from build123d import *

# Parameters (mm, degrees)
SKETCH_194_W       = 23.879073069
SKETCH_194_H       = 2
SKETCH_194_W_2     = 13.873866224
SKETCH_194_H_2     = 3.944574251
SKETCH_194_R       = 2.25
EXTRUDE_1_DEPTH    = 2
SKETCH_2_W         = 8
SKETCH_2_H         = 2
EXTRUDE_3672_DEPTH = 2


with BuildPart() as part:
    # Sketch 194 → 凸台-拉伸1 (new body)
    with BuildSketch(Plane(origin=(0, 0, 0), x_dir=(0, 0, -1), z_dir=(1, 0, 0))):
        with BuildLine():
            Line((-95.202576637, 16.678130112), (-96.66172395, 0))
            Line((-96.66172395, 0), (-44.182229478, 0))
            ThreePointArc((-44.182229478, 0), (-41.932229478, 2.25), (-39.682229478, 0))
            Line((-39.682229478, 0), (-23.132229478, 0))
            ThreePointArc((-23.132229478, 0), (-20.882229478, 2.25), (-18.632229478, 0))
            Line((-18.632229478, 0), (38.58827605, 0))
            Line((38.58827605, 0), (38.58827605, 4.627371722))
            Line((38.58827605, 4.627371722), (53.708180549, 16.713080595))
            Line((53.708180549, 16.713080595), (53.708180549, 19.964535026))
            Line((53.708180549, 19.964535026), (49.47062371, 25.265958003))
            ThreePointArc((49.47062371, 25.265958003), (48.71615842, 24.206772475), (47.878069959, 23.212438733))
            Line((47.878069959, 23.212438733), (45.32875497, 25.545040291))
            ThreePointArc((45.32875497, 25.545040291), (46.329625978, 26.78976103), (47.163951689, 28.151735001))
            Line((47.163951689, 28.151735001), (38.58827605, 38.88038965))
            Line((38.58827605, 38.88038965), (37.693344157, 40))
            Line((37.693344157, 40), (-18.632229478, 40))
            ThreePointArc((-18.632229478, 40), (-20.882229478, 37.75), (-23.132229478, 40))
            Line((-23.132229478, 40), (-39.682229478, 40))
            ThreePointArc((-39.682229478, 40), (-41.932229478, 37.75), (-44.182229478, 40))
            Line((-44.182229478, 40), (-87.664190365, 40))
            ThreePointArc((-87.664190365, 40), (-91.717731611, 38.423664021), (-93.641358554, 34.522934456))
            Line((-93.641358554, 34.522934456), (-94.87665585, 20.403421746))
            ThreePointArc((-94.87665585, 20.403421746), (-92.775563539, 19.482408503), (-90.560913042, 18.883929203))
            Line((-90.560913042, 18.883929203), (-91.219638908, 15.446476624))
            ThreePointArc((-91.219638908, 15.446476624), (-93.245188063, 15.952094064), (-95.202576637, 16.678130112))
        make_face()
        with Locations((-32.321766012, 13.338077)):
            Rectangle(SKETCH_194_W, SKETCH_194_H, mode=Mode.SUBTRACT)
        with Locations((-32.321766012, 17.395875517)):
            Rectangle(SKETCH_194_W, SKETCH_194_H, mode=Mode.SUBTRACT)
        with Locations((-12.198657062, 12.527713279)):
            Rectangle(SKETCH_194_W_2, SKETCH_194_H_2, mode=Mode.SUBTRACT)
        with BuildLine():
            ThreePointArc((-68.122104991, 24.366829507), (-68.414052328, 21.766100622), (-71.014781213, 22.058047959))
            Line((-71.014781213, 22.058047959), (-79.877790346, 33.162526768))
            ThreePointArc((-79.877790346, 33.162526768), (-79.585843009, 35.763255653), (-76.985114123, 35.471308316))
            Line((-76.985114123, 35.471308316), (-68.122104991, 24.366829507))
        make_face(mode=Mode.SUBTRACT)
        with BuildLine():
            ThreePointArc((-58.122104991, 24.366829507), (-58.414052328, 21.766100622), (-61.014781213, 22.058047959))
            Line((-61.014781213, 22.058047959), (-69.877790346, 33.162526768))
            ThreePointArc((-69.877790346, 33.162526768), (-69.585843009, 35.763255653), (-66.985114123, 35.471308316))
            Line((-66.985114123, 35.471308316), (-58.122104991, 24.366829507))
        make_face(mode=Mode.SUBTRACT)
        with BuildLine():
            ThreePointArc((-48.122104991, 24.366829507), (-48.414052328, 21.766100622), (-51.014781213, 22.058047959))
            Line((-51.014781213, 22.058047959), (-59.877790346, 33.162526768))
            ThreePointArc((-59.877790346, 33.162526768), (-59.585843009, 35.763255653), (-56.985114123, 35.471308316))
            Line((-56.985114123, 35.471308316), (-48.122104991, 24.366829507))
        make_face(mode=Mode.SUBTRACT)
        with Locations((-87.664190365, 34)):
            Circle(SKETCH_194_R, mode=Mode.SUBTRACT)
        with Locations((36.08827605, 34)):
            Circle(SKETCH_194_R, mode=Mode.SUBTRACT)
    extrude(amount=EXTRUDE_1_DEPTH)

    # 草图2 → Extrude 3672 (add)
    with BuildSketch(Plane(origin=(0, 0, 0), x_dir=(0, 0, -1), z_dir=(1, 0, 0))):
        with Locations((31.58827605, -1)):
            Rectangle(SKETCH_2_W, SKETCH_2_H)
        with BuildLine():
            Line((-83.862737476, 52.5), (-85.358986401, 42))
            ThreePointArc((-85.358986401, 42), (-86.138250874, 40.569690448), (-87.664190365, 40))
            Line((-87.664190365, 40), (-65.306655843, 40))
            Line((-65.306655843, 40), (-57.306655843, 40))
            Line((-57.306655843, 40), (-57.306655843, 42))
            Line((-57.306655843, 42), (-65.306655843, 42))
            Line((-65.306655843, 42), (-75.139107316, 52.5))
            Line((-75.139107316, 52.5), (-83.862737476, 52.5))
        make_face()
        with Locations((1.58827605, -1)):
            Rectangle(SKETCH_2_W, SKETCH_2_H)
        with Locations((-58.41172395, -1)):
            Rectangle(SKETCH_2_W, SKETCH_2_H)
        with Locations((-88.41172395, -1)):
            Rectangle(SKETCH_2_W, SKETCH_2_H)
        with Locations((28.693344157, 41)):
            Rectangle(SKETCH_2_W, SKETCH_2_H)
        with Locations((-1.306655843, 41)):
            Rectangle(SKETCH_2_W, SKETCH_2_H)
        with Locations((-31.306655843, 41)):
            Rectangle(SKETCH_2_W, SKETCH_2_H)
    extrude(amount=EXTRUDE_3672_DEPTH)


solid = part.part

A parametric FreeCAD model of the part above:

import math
import FreeCAD as App
import Part
import Sketcher
from FreeCAD import Vector
Q = App.Units.Quantity

doc = App.newDocument("Part")
body = doc.addObject("PartDesign::Body", "Body")

# Sketch on YZ plane
sketch1 = doc.addObject("Sketcher::SketchObject", "Sketch")
body.addObject(sketch1)
sketch1.AttachmentSupport = (doc.YZ_Plane, [""])
sketch1.MapMode = "FlatFace"
sketch1.addGeometry(Part.LineSegment(Vector(16.7, 95.2, 0), Vector(0, 96.7, 0)), False)
sketch1.addGeometry(Part.LineSegment(Vector(0, 96.7, 0), Vector(0, 44.2, 0)), False)
sketch1.addGeometry(Part.ArcOfCircle(Part.Circle(Vector(0, 41.9, 0), Vector(0, 0, 1), 2.2), math.radians(-90), math.radians(90)), False)
sketch1.addGeometry(Part.LineSegment(Vector(0, 39.7, 0), Vector(0, 23.1, 0)), False)
sketch1.addGeometry(Part.ArcOfCircle(Part.Circle(Vector(0, 20.9, 0), Vector(0, 0, 1), 2.2), math.radians(-90), math.radians(90)), False)
sketch1.addGeometry(Part.LineSegment(Vector(0, 18.6, 0), Vector(0, -38.6, 0)), False)
sketch1.addGeometry(Part.LineSegment(Vector(0, -38.6, 0), Vector(4.6, -38.6, 0)), False)
sketch1.addGeometry(Part.LineSegment(Vector(4.6, -38.6, 0), Vector(16.7, -53.7, 0)), False)
sketch1.addGeometry(Part.LineSegment(Vector(16.7, -53.7, 0), Vector(20, -53.7, 0)), False)
sketch1.addGeometry(Part.LineSegment(Vector(20, -53.7, 0), Vector(25.3, -49.5, 0)), False)
sketch1.addGeometry(Part.ArcOfCircle(Part.Circle(Vector(34, -36.1, 0), Vector(0, 0, 1), 16), math.radians(-132.46), math.radians(-123.13)), False)
sketch1.addGeometry(Part.LineSegment(Vector(23.2, -47.9, 0), Vector(25.5, -45.3, 0)), False)
sketch1.addGeometry(Part.ArcOfCircle(Part.Circle(Vector(34, -36.1, 0), Vector(0, 0, 1), 12.5), math.radians(-132.46), math.radians(-117.84)), False)
sketch1.addGeometry(Part.LineSegment(Vector(28.2, -47.2, 0), Vector(38.9, -38.6, 0)), False)
sketch1.addGeometry(Part.LineSegment(Vector(38.9, -38.6, 0), Vector(40, -37.7, 0)), False)
sketch1.addGeometry(Part.LineSegment(Vector(40, -37.7, 0), Vector(40, 18.6, 0)), False)
sketch1.addGeometry(Part.ArcOfCircle(Part.Circle(Vector(40, 20.9, 0), Vector(0, 0, 1), 2.2), math.radians(90), math.radians(270)), False)
sketch1.addGeometry(Part.LineSegment(Vector(40, 23.1, 0), Vector(40, 39.7, 0)), False)
sketch1.addGeometry(Part.ArcOfCircle(Part.Circle(Vector(40, 41.9, 0), Vector(0, 0, 1), 2.2), math.radians(90), math.radians(270)), False)
sketch1.addGeometry(Part.LineSegment(Vector(40, 44.2, 0), Vector(40, 87.7, 0)), False)
sketch1.addGeometry(Part.ArcOfCircle(Part.Circle(Vector(34, 87.7, 0), Vector(0, 0, 1), 6), math.radians(0), math.radians(85)), False)
sketch1.addGeometry(Part.LineSegment(Vector(34.5, 93.6, 0), Vector(20.4, 94.9, 0)), False)
sketch1.addGeometry(Part.ArcOfCircle(Part.Circle(Vector(34, 87.7, 0), Vector(0, 0, 1), 15.4), math.radians(152.06), math.radians(169.15)), False)
sketch1.addGeometry(Part.LineSegment(Vector(18.9, 90.6, 0), Vector(15.4, 91.2, 0)), False)
sketch1.addGeometry(Part.ArcOfCircle(Part.Circle(Vector(34, 87.7, 0), Vector(0, 0, 1), 18.9), math.radians(156.48), math.radians(169.15)), False)
sketch1.addGeometry(Part.LineSegment(Vector(12.3, 20.4, 0), Vector(12.3, 44.3, 0)), False)
sketch1.addGeometry(Part.LineSegment(Vector(12.3, 44.3, 0), Vector(14.3, 44.3, 0)), False)
sketch1.addGeometry(Part.LineSegment(Vector(14.3, 44.3, 0), Vector(14.3, 20.4, 0)), False)
sketch1.addGeometry(Part.LineSegment(Vector(14.3, 20.4, 0), Vector(12.3, 20.4, 0)), False)
sketch1.addGeometry(Part.LineSegment(Vector(16.4, 20.4, 0), Vector(16.4, 44.3, 0)), False)
sketch1.addGeometry(Part.LineSegment(Vector(16.4, 44.3, 0), Vector(18.4, 44.3, 0)), False)
sketch1.addGeometry(Part.LineSegment(Vector(18.4, 44.3, 0), Vector(18.4, 20.4, 0)), False)
sketch1.addGeometry(Part.LineSegment(Vector(18.4, 20.4, 0), Vector(16.4, 20.4, 0)), False)
sketch1.addGeometry(Part.LineSegment(Vector(10.6, 5.3, 0), Vector(10.6, 19.1, 0)), False)
sketch1.addGeometry(Part.LineSegment(Vector(10.6, 19.1, 0), Vector(14.5, 19.1, 0)), False)
sketch1.addGeometry(Part.LineSegment(Vector(14.5, 19.1, 0), Vector(14.5, 5.3, 0)), False)
sketch1.addGeometry(Part.LineSegment(Vector(14.5, 5.3, 0), Vector(10.6, 5.3, 0)), False)
sketch1.addGeometry(Part.LineSegment(Vector(35.5, 77, 0), Vector(24.4, 68.1, 0)), False)
sketch1.addGeometry(Part.ArcOfCircle(Part.Circle(Vector(23.2, 69.6, 0), Vector(0, 0, 1), 1.9), math.radians(129), math.radians(309)), False)
sketch1.addGeometry(Part.LineSegment(Vector(22.1, 71, 0), Vector(33.2, 79.9, 0)), False)
sketch1.addGeometry(Part.ArcOfCircle(Part.Circle(Vector(34.3, 78.4, 0), Vector(0, 0, 1), 1.9), math.radians(-51), math.radians(129)), False)
sketch1.addGeometry(Part.LineSegment(Vector(35.5, 67, 0), Vector(24.4, 58.1, 0)), False)
sketch1.addGeometry(Part.ArcOfCircle(Part.Circle(Vector(23.2, 59.6, 0), Vector(0, 0, 1), 1.9), math.radians(129), math.radians(309)), False)
sketch1.addGeometry(Part.LineSegment(Vector(22.1, 61, 0), Vector(33.2, 69.9, 0)), False)
sketch1.addGeometry(Part.ArcOfCircle(Part.Circle(Vector(34.3, 68.4, 0), Vector(0, 0, 1), 1.9), math.radians(-51), math.radians(129)), False)
sketch1.addGeometry(Part.LineSegment(Vector(35.5, 57, 0), Vector(24.4, 48.1, 0)), False)
sketch1.addGeometry(Part.ArcOfCircle(Part.Circle(Vector(23.2, 49.6, 0), Vector(0, 0, 1), 1.9), math.radians(129), math.radians(309)), False)
sketch1.addGeometry(Part.LineSegment(Vector(22.1, 51, 0), Vector(33.2, 59.9, 0)), False)
sketch1.addGeometry(Part.ArcOfCircle(Part.Circle(Vector(34.3, 58.4, 0), Vector(0, 0, 1), 1.9), math.radians(-51), math.radians(129)), False)
sketch1.addGeometry(Part.Circle(Vector(34, 87.7, 0), Vector(0, 0, 1), 2.2), False)
sketch1.addGeometry(Part.Circle(Vector(34, -36.1, 0), Vector(0, 0, 1), 2.2), False)
sketch1.addConstraint(Sketcher.Constraint("Coincident", 0, 2, 1, 1))
sketch1.addConstraint(Sketcher.Constraint("Coincident", 1, 2, 2, 2))
sketch1.addConstraint(Sketcher.Constraint("Coincident", 2, 1, 3, 1))
sketch1.addConstraint(Sketcher.Constraint("Coincident", 3, 2, 4, 2))
sketch1.addConstraint(Sketcher.Constraint("Coincident", 4, 1, 5, 1))
sketch1.addConstraint(Sketcher.Constraint("Coincident", 5, 2, 6, 1))
sketch1.addConstraint(Sketcher.Constraint("Coincident", 6, 2, 7, 1))
sketch1.addConstraint(Sketcher.Constraint("Coincident", 7, 2, 8, 1))
sketch1.addConstraint(Sketcher.Constraint("Coincident", 8, 2, 9, 1))
sketch1.addConstraint(Sketcher.Constraint("Coincident", 9, 2, 10, 2))
sketch1.addConstraint(Sketcher.Constraint("Coincident", 10, 1, 11, 1))
sketch1.addConstraint(Sketcher.Constraint("Coincident", 11, 2, 12, 1))
sketch1.addConstraint(Sketcher.Constraint("Coincident", 12, 2, 13, 1))
sketch1.addConstraint(Sketcher.Constraint("Coincident", 13, 2, 14, 1))
sketch1.addConstraint(Sketcher.Constraint("Coincident", 14, 2, 15, 1))
sketch1.addConstraint(Sketcher.Constraint("Coincident", 15, 2, 16, 2))
sketch1.addConstraint(Sketcher.Constraint("Coincident", 16, 1, 17, 1))
sketch1.addConstraint(Sketcher.Constraint("Coincident", 17, 2, 18, 2))
sketch1.addConstraint(Sketcher.Constraint("Coincident", 18, 1, 19, 1))
sketch1.addConstraint(Sketcher.Constraint("Tangent", 19, 2, 20, 1))
sketch1.addConstraint(Sketcher.Constraint("Tangent", 20, 2, 21, 1))
sketch1.addConstraint(Sketcher.Constraint("Coincident", 21, 2, 22, 1))
sketch1.addConstraint(Sketcher.Constraint("Coincident", 22, 2, 23, 1))
sketch1.addConstraint(Sketcher.Constraint("Coincident", 23, 2, 24, 2))
sketch1.addConstraint(Sketcher.Constraint("Coincident", 24, 1, 0, 1))
sketch1.addConstraint(Sketcher.Constraint("Coincident", 25, 2, 26, 1))
sketch1.addConstraint(Sketcher.Constraint("Coincident", 26, 2, 27, 1))
sketch1.addConstraint(Sketcher.Constraint("Coincident", 27, 2, 28, 1))
sketch1.addConstraint(Sketcher.Constraint("Coincident", 28, 2, 25, 1))
sketch1.addConstraint(Sketcher.Constraint("Coincident", 29, 2, 30, 1))
sketch1.addConstraint(Sketcher.Constraint("Coincident", 30, 2, 31, 1))
sketch1.addConstraint(Sketcher.Constraint("Coincident", 31, 2, 32, 1))
sketch1.addConstraint(Sketcher.Constraint("Coincident", 32, 2, 29, 1))
sketch1.addConstraint(Sketcher.Constraint("Coincident", 33, 2, 34, 1))
sketch1.addConstraint(Sketcher.Constraint("Coincident", 34, 2, 35, 1))
sketch1.addConstraint(Sketcher.Constraint("Coincident", 35, 2, 36, 1))
sketch1.addConstraint(Sketcher.Constraint("Coincident", 36, 2, 33, 1))
sketch1.addConstraint(Sketcher.Constraint("Tangent", 37, 2, 38, 2))
sketch1.addConstraint(Sketcher.Constraint("Tangent", 38, 1, 39, 1))
sketch1.addConstraint(Sketcher.Constraint("Tangent", 39, 2, 40, 2))
sketch1.addConstraint(Sketcher.Constraint("Tangent", 40, 1, 37, 1))
sketch1.addConstraint(Sketcher.Constraint("Tangent", 41, 2, 42, 2))
sketch1.addConstraint(Sketcher.Constraint("Tangent", 42, 1, 43, 1))
sketch1.addConstraint(Sketcher.Constraint("Tangent", 43, 2, 44, 2))
sketch1.addConstraint(Sketcher.Constraint("Tangent", 44, 1, 41, 1))
sketch1.addConstraint(Sketcher.Constraint("Tangent", 45, 2, 46, 2))
sketch1.addConstraint(Sketcher.Constraint("Tangent", 46, 1, 47, 1))
sketch1.addConstraint(Sketcher.Constraint("Tangent", 47, 2, 48, 2))
sketch1.addConstraint(Sketcher.Constraint("Tangent", 48, 1, 45, 1))
sketch1.addConstraint(Sketcher.Constraint("Vertical", 1))
sketch1.addConstraint(Sketcher.Constraint("Vertical", 3))
sketch1.addConstraint(Sketcher.Constraint("Vertical", 5))
sketch1.addConstraint(Sketcher.Constraint("Horizontal", 6))
sketch1.addConstraint(Sketcher.Constraint("Horizontal", 8))
sketch1.addConstraint(Sketcher.Constraint("Vertical", 15))
sketch1.addConstraint(Sketcher.Constraint("Vertical", 17))
sketch1.addConstraint(Sketcher.Constraint("Vertical", 19))
sketch1.addConstraint(Sketcher.Constraint("Vertical", 25))
sketch1.addConstraint(Sketcher.Constraint("Horizontal", 26))
sketch1.addConstraint(Sketcher.Constraint("Vertical", 27))
sketch1.addConstraint(Sketcher.Constraint("Horizontal", 28))
sketch1.addConstraint(Sketcher.Constraint("Vertical", 29))
sketch1.addConstraint(Sketcher.Constraint("Horizontal", 30))
sketch1.addConstraint(Sketcher.Constraint("Vertical", 31))
sketch1.addConstraint(Sketcher.Constraint("Horizontal", 32))
sketch1.addConstraint(Sketcher.Constraint("Vertical", 33))
sketch1.addConstraint(Sketcher.Constraint("Horizontal", 34))
sketch1.addConstraint(Sketcher.Constraint("Vertical", 35))
sketch1.addConstraint(Sketcher.Constraint("Horizontal", 36))
sketch1.addConstraint(Sketcher.Constraint("Coincident", 12, 3, 10, 3))
sketch1.addConstraint(Sketcher.Constraint("Coincident", 22, 3, 20, 3))
sketch1.addConstraint(Sketcher.Constraint("Coincident", 24, 3, 20, 3))
sketch1.addConstraint(Sketcher.Constraint("Coincident", 49, 3, 20, 3))
sketch1.addConstraint(Sketcher.Constraint("Coincident", 50, 3, 10, 3))
sketch1.addConstraint(Sketcher.Constraint("Equal", 2, 4))
sketch1.addConstraint(Sketcher.Constraint("Equal", 4, 16))
sketch1.addConstraint(Sketcher.Constraint("Equal", 16, 18))
sketch1.addConstraint(Sketcher.Constraint("Equal", 38, 40))
sketch1.addConstraint(Sketcher.Constraint("Equal", 40, 42))
sketch1.addConstraint(Sketcher.Constraint("Equal", 42, 44))
sketch1.addConstraint(Sketcher.Constraint("Equal", 44, 46))
sketch1.addConstraint(Sketcher.Constraint("Equal", 46, 48))
sketch1.addConstraint(Sketcher.Constraint("Equal", 18, 49))
sketch1.addConstraint(Sketcher.Constraint("Equal", 49, 50))
sketch1.addConstraint(Sketcher.Constraint("PointOnObject", 2, 3, -2))
sketch1.addConstraint(Sketcher.Constraint("PointOnObject", 4, 3, -2))
sketch1.addConstraint(Sketcher.Constraint("PointOnObject", 0, 2, -2))
sketch1.addConstraint(Sketcher.Constraint("PointOnObject", 2, 1, -2))
sketch1.addConstraint(Sketcher.Constraint("PointOnObject", 4, 1, -2))
sketch1.addConstraint(Sketcher.Constraint("Perpendicular", 7, 9))
sketch1.addConstraint(Sketcher.Constraint("Parallel", 9, 13))
sketch1.addConstraint(Sketcher.Constraint("Parallel", 13, 14))
sketch1.addConstraint(Sketcher.Constraint("Parallel", 0, 21))
sketch1.addConstraint(Sketcher.Constraint("Parallel", 39, 41))
sketch1.addConstraint(Sketcher.Constraint("Parallel", 43, 45))
sketch1.addConstraint(Sketcher.Constraint("Horizontal", 4, 3, 16, 3))
sketch1.addConstraint(Sketcher.Constraint("Horizontal", 2, 3, 18, 3))
sketch1.addConstraint(Sketcher.Constraint("Horizontal", 6, 2, 13, 2))
sketch1.addConstraint(Sketcher.Constraint("Horizontal", 26, 2, 29, 2))
sketch1.addConstraint(Sketcher.Constraint("Horizontal", 28, 2, 31, 2))
sketch1.addConstraint(Sketcher.Constraint("Vertical", 16, 3, 18, 3))
sketch1.addConstraint(Sketcher.Constraint("Vertical", 12, 3, 20, 3))
sketch1.addConstraint(Sketcher.Constraint("Vertical", 38, 3, 42, 3))
sketch1.addConstraint(Sketcher.Constraint("Vertical", 40, 3, 44, 3))
sketch1.addConstraint(Sketcher.Constraint("Vertical", 42, 3, 46, 3))
sketch1.addConstraint(Sketcher.Constraint("Vertical", 44, 3, 48, 3))
sketch1.addConstraint(Sketcher.Constraint("Vertical", 46, 3, 10, 1))
sketch1.addConstraint(Sketcher.Constraint("Vertical", 18, 3, 14, 2))
sketch1.addConstraint(Sketcher.Constraint("Vertical", 15, 2, 16, 1))
sketch1.addConstraint(Sketcher.Constraint("Vertical", 17, 2, 18, 1))
sketch1.addConstraint(Sketcher.Constraint("Equal", 28, 30))
sketch1.addConstraint(Sketcher.Constraint("Radius", 20, 6.0))
sketch1.addConstraint(Sketcher.Constraint("Diameter", 49, 4.5))
sketch1.addConstraint(Sketcher.Constraint("DistanceX", 26, 1, 26, 2, 2.0))
sketch1.addConstraint(Sketcher.Constraint("Angle", 0, Q("175 deg")))
sketch1.addConstraint(Sketcher.Constraint("DistanceX", -1, 1, 10, 3, 34.0))
sketch1.addConstraint(Sketcher.Constraint("Distance", 23, 3.5))
sketch1.addConstraint(Sketcher.Constraint("DistanceY", 3, 2, 3, 1, 16.55))
sketch1.addConstraint(Sketcher.Constraint("DistanceX", -1, 1, 34, 2, 14.5))
sketch1.addConstraint(Sketcher.Constraint("Radius", 22, 15.391121))
sketch1.addConstraint(Sketcher.Constraint("Radius", 10, 15.980323))
sketch1.addConstraint(Sketcher.Constraint("Radius", 12, 12.524887))
sketch1.addConstraint(Sketcher.Constraint("Radius", 38, 1.850544))
sketch1.addConstraint(Sketcher.Constraint("DistanceX", 6, 1, 6, 2, 4.627372))
sketch1.addConstraint(Sketcher.Constraint("DistanceY", 19, 1, 19, 2, 43.481961))
sketch1.addConstraint(Sketcher.Constraint("Distance", 14, 1.433328))
sketch1.addConstraint(Sketcher.Constraint("Distance", 37, 14.207828))
sketch1.addConstraint(Sketcher.Constraint("DistanceX", 8, 1, 8, 2, 3.251454))
sketch1.addConstraint(Sketcher.Constraint("DistanceX", 34, 1, 34, 2, 3.944574))
sketch1.addConstraint(Sketcher.Constraint("DistanceY", 1, 2, 1, 1, 52.479494))
sketch1.addConstraint(Sketcher.Constraint("DistanceY", 5, 2, 5, 1, 57.220506))
sketch1.addConstraint(Sketcher.Constraint("DistanceY", 15, 1, 15, 2, 56.325574))
sketch1.addConstraint(Sketcher.Constraint("DistanceY", 25, 1, 25, 2, 23.879073))
sketch1.addConstraint(Sketcher.Constraint("DistanceY", 33, 1, 33, 2, 13.873866))
sketch1.addConstraint(Sketcher.Constraint("DistanceY", -1, 1, 2, 3, 41.932229))
sketch1.addConstraint(Sketcher.Constraint("DistanceX", -1, 1, 38, 3, 23.212439))
sketch1.addConstraint(Sketcher.Constraint("DistanceX", -1, 1, 7, 2, 16.713081))
sketch1.addConstraint(Sketcher.Constraint("DistanceX", -1, 1, 9, 2, 25.265958))
sketch1.addConstraint(Sketcher.Constraint("DistanceX", -1, 1, 11, 2, 25.54504))
sketch1.addConstraint(Sketcher.Constraint("DistanceX", -1, 1, 22, 2, 18.883929))
sketch1.addConstraint(Sketcher.Constraint("DistanceY", -1, 1, 23, 2, 91.219639))
sketch1.addConstraint(Sketcher.Constraint("DistanceY", -1, 1, 27, 2, 20.382229))
sketch1.addConstraint(Sketcher.Constraint("DistanceY", -1, 1, 33, 2, 19.13559))
sketch1.addConstraint(Sketcher.Constraint("DistanceX", -1, 1, 37, 2, 24.36683))
sketch1.addConstraint(Sketcher.Constraint("DistanceY", -1, 1, 38, 1, 71.014781))
sketch1.addConstraint(Sketcher.Constraint("DistanceY", -1, 1, 42, 1, 61.014781))
sketch1.addConstraint(Sketcher.Constraint("DistanceY", -1, 1, 46, 1, 51.014781))
sketch1.addConstraint(Sketcher.Constraint("DistanceX", -1, 1, 25, 2, 12.338077))
sketch1.addConstraint(Sketcher.Constraint("DistanceX", -1, 1, 29, 2, 16.395876))
pad1 = doc.addObject("PartDesign::Pad", "Pad")
body.addObject(pad1)
pad1.Profile = sketch1
pad1.Length = 2

# Sketch on YZ plane
sketch2 = doc.addObject("Sketcher::SketchObject", "Sketch001")
body.addObject(sketch2)
sketch2.AttachmentSupport = (doc.YZ_Plane, [""])
sketch2.MapMode = "FlatFace"
sketch2.addGeometry(Part.LineSegment(Vector(0, -27.6, 0), Vector(-2, -27.6, 0)), False)
sketch2.addGeometry(Part.LineSegment(Vector(-2, -27.6, 0), Vector(-2, -35.6, 0)), False)
sketch2.addGeometry(Part.LineSegment(Vector(-2, -35.6, 0), Vector(0, -35.6, 0)), False)
sketch2.addGeometry(Part.LineSegment(Vector(0, -35.6, 0), Vector(0, -27.6, 0)), False)
sketch2.addGeometry(Part.LineSegment(Vector(52.5, 83.9, 0), Vector(42, 85.4, 0)), False)
sketch2.addGeometry(Part.ArcOfCircle(Part.Circle(Vector(42.3, 87.7, 0), Vector(0, 0, 1), 2.3), math.radians(180), math.radians(262)), False)
sketch2.addGeometry(Part.LineSegment(Vector(40, 87.7, 0), Vector(40, 57.3, 0)), False)
sketch2.addGeometry(Part.LineSegment(Vector(40, 57.3, 0), Vector(42, 57.3, 0)), False)
sketch2.addGeometry(Part.LineSegment(Vector(42, 57.3, 0), Vector(42, 65.3, 0)), False)
sketch2.addGeometry(Part.LineSegment(Vector(42, 65.3, 0), Vector(52.5, 75.1, 0)), False)
sketch2.addGeometry(Part.LineSegment(Vector(52.5, 75.1, 0), Vector(52.5, 83.9, 0)), False)
sketch2.addGeometry(Part.LineSegment(Vector(0, 2.4, 0), Vector(-2, 2.4, 0)), False)
sketch2.addGeometry(Part.LineSegment(Vector(-2, 2.4, 0), Vector(-2, -5.6, 0)), False)
sketch2.addGeometry(Part.LineSegment(Vector(-2, -5.6, 0), Vector(0, -5.6, 0)), False)
sketch2.addGeometry(Part.LineSegment(Vector(0, -5.6, 0), Vector(0, 2.4, 0)), False)
sketch2.addGeometry(Part.LineSegment(Vector(0, 62.4, 0), Vector(-2, 62.4, 0)), False)
sketch2.addGeometry(Part.LineSegment(Vector(-2, 62.4, 0), Vector(-2, 54.4, 0)), False)
sketch2.addGeometry(Part.LineSegment(Vector(-2, 54.4, 0), Vector(0, 54.4, 0)), False)
sketch2.addGeometry(Part.LineSegment(Vector(0, 54.4, 0), Vector(0, 62.4, 0)), False)
sketch2.addGeometry(Part.LineSegment(Vector(0, 92.4, 0), Vector(-2, 92.4, 0)), False)
sketch2.addGeometry(Part.LineSegment(Vector(-2, 92.4, 0), Vector(-2, 84.4, 0)), False)
sketch2.addGeometry(Part.LineSegment(Vector(-2, 84.4, 0), Vector(0, 84.4, 0)), False)
sketch2.addGeometry(Part.LineSegment(Vector(0, 84.4, 0), Vector(0, 92.4, 0)), False)
sketch2.addGeometry(Part.LineSegment(Vector(42, -24.7, 0), Vector(40, -24.7, 0)), False)
sketch2.addGeometry(Part.LineSegment(Vector(40, -24.7, 0), Vector(40, -32.7, 0)), False)
sketch2.addGeometry(Part.LineSegment(Vector(40, -32.7, 0), Vector(42, -32.7, 0)), False)
sketch2.addGeometry(Part.LineSegment(Vector(42, -32.7, 0), Vector(42, -24.7, 0)), False)
sketch2.addGeometry(Part.LineSegment(Vector(42, 5.3, 0), Vector(40, 5.3, 0)), False)
sketch2.addGeometry(Part.LineSegment(Vector(40, 5.3, 0), Vector(40, -2.7, 0)), False)
sketch2.addGeometry(Part.LineSegment(Vector(40, -2.7, 0), Vector(42, -2.7, 0)), False)
sketch2.addGeometry(Part.LineSegment(Vector(42, -2.7, 0), Vector(42, 5.3, 0)), False)
sketch2.addGeometry(Part.LineSegment(Vector(42, 35.3, 0), Vector(40, 35.3, 0)), False)
sketch2.addGeometry(Part.LineSegment(Vector(40, 35.3, 0), Vector(40, 27.3, 0)), False)
sketch2.addGeometry(Part.LineSegment(Vector(40, 27.3, 0), Vector(42, 27.3, 0)), False)
sketch2.addGeometry(Part.LineSegment(Vector(42, 27.3, 0), Vector(42, 35.3, 0)), False)
sketch2.addConstraint(Sketcher.Constraint("Coincident", 0, 2, 1, 1))
sketch2.addConstraint(Sketcher.Constraint("Coincident", 1, 2, 2, 1))
sketch2.addConstraint(Sketcher.Constraint("Coincident", 2, 2, 3, 1))
sketch2.addConstraint(Sketcher.Constraint("Coincident", 3, 2, 0, 1))
sketch2.addConstraint(Sketcher.Constraint("Tangent", 4, 2, 5, 2))
sketch2.addConstraint(Sketcher.Constraint("Tangent", 5, 1, 6, 1))
sketch2.addConstraint(Sketcher.Constraint("Coincident", 6, 2, 7, 1))
sketch2.addConstraint(Sketcher.Constraint("Coincident", 7, 2, 8, 1))
sketch2.addConstraint(Sketcher.Constraint("Coincident", 8, 2, 9, 1))
sketch2.addConstraint(Sketcher.Constraint("Coincident", 9, 2, 10, 1))
sketch2.addConstraint(Sketcher.Constraint("Coincident", 10, 2, 4, 1))
sketch2.addConstraint(Sketcher.Constraint("Coincident", 11, 2, 12, 1))
sketch2.addConstraint(Sketcher.Constraint("Coincident", 12, 2, 13, 1))
sketch2.addConstraint(Sketcher.Constraint("Coincident", 13, 2, 14, 1))
sketch2.addConstraint(Sketcher.Constraint("Coincident", 14, 2, 11, 1))
sketch2.addConstraint(Sketcher.Constraint("Coincident", 15, 2, 16, 1))
sketch2.addConstraint(Sketcher.Constraint("Coincident", 16, 2, 17, 1))
sketch2.addConstraint(Sketcher.Constraint("Coincident", 17, 2, 18, 1))
sketch2.addConstraint(Sketcher.Constraint("Coincident", 18, 2, 15, 1))
sketch2.addConstraint(Sketcher.Constraint("Coincident", 19, 2, 20, 1))
sketch2.addConstraint(Sketcher.Constraint("Coincident", 20, 2, 21, 1))
sketch2.addConstraint(Sketcher.Constraint("Coincident", 21, 2, 22, 1))
sketch2.addConstraint(Sketcher.Constraint("Coincident", 22, 2, 19, 1))
sketch2.addConstraint(Sketcher.Constraint("Coincident", 23, 2, 24, 1))
sketch2.addConstraint(Sketcher.Constraint("Coincident", 24, 2, 25, 1))
sketch2.addConstraint(Sketcher.Constraint("Coincident", 25, 2, 26, 1))
sketch2.addConstraint(Sketcher.Constraint("Coincident", 26, 2, 23, 1))
sketch2.addConstraint(Sketcher.Constraint("Coincident", 27, 2, 28, 1))
sketch2.addConstraint(Sketcher.Constraint("Coincident", 28, 2, 29, 1))
sketch2.addConstraint(Sketcher.Constraint("Coincident", 29, 2, 30, 1))
sketch2.addConstraint(Sketcher.Constraint("Coincident", 30, 2, 27, 1))
sketch2.addConstraint(Sketcher.Constraint("Coincident", 31, 2, 32, 1))
sketch2.addConstraint(Sketcher.Constraint("Coincident", 32, 2, 33, 1))
sketch2.addConstraint(Sketcher.Constraint("Coincident", 33, 2, 34, 1))
sketch2.addConstraint(Sketcher.Constraint("Coincident", 34, 2, 31, 1))
sketch2.addConstraint(Sketcher.Constraint("Horizontal", 0))
sketch2.addConstraint(Sketcher.Constraint("Vertical", 1))
sketch2.addConstraint(Sketcher.Constraint("Horizontal", 2))
sketch2.addConstraint(Sketcher.Constraint("Vertical", 3))
sketch2.addConstraint(Sketcher.Constraint("Vertical", 6))
sketch2.addConstraint(Sketcher.Constraint("Horizontal", 7))
sketch2.addConstraint(Sketcher.Constraint("Vertical", 8))
sketch2.addConstraint(Sketcher.Constraint("Vertical", 10))
sketch2.addConstraint(Sketcher.Constraint("Horizontal", 11))
sketch2.addConstraint(Sketcher.Constraint("Vertical", 12))
sketch2.addConstraint(Sketcher.Constraint("Horizontal", 13))
sketch2.addConstraint(Sketcher.Constraint("Vertical", 14))
sketch2.addConstraint(Sketcher.Constraint("Horizontal", 15))
sketch2.addConstraint(Sketcher.Constraint("Vertical", 16))
sketch2.addConstraint(Sketcher.Constraint("Horizontal", 17))
sketch2.addConstraint(Sketcher.Constraint("Vertical", 18))
sketch2.addConstraint(Sketcher.Constraint("Horizontal", 19))
sketch2.addConstraint(Sketcher.Constraint("Vertical", 20))
sketch2.addConstraint(Sketcher.Constraint("Horizontal", 21))
sketch2.addConstraint(Sketcher.Constraint("Vertical", 22))
sketch2.addConstraint(Sketcher.Constraint("Horizontal", 23))
sketch2.addConstraint(Sketcher.Constraint("Vertical", 24))
sketch2.addConstraint(Sketcher.Constraint("Horizontal", 25))
sketch2.addConstraint(Sketcher.Constraint("Vertical", 26))
sketch2.addConstraint(Sketcher.Constraint("Horizontal", 27))
sketch2.addConstraint(Sketcher.Constraint("Vertical", 28))
sketch2.addConstraint(Sketcher.Constraint("Horizontal", 29))
sketch2.addConstraint(Sketcher.Constraint("Vertical", 30))
sketch2.addConstraint(Sketcher.Constraint("Horizontal", 31))
sketch2.addConstraint(Sketcher.Constraint("Vertical", 32))
sketch2.addConstraint(Sketcher.Constraint("Horizontal", 33))
sketch2.addConstraint(Sketcher.Constraint("Vertical", 34))
sketch2.addConstraint(Sketcher.Constraint("PointOnObject", 2, 2, -2))
sketch2.addConstraint(Sketcher.Constraint("PointOnObject", 13, 2, -2))
sketch2.addConstraint(Sketcher.Constraint("PointOnObject", 17, 2, -2))
sketch2.addConstraint(Sketcher.Constraint("PointOnObject", 21, 2, -2))
sketch2.addConstraint(Sketcher.Constraint("Vertical", 4, 2, 7, 2))
sketch2.addConstraint(Sketcher.Constraint("Vertical", 1, 2, 11, 2))
sketch2.addConstraint(Sketcher.Constraint("Vertical", 12, 2, 15, 2))
sketch2.addConstraint(Sketcher.Constraint("Vertical", 16, 2, 19, 2))
sketch2.addConstraint(Sketcher.Constraint("Vertical", 6, 2, 23, 2))
sketch2.addConstraint(Sketcher.Constraint("Vertical", 8, 2, 25, 2))
sketch2.addConstraint(Sketcher.Constraint("Vertical", 24, 2, 27, 2))
sketch2.addConstraint(Sketcher.Constraint("Vertical", 26, 2, 29, 2))
sketch2.addConstraint(Sketcher.Constraint("Vertical", 28, 2, 31, 2))
sketch2.addConstraint(Sketcher.Constraint("Vertical", 30, 2, 33, 2))
sketch2.addConstraint(Sketcher.Constraint("Equal", 2, 7))
sketch2.addConstraint(Sketcher.Constraint("Equal", 3, 8))
sketch2.addConstraint(Sketcher.Constraint("Equal", 8, 12))
sketch2.addConstraint(Sketcher.Constraint("Equal", 14, 16))
sketch2.addConstraint(Sketcher.Constraint("Equal", 18, 20))
sketch2.addConstraint(Sketcher.Constraint("Equal", 22, 24))
sketch2.addConstraint(Sketcher.Constraint("Equal", 26, 28))
sketch2.addConstraint(Sketcher.Constraint("Equal", 30, 32))
sketch2.addConstraint(Sketcher.Constraint("DistanceX", 0, 2, 0, 1, 2.0))
sketch2.addConstraint(Sketcher.Constraint("DistanceY", 1, 2, 1, 1, 8.0))
sketch2.addConstraint(Sketcher.Constraint("DistanceX", -1, 1, 4, 2, 42.0))
sketch2.addConstraint(Sketcher.Constraint("DistanceY", 0, 2, 11, 2, 30.0))
sketch2.addConstraint(Sketcher.Constraint("DistanceY", 11, 2, 16, 2, 52.0))
sketch2.addConstraint(Sketcher.Constraint("DistanceY", 15, 2, 19, 2, 30.0))
sketch2.addConstraint(Sketcher.Constraint("DistanceY", 23, 2, 27, 2, 30.0))
sketch2.addConstraint(Sketcher.Constraint("DistanceY", 31, 2, 6, 2, 22.0))
sketch2.addConstraint(Sketcher.Constraint("DistanceY", 27, 2, 31, 2, 30.0))
sketch2.addConstraint(Sketcher.Constraint("DistanceX", -1, 1, 9, 2, 52.5))
sketch2.addConstraint(Sketcher.Constraint("Radius", 5, 2.328491))
sketch2.addConstraint(Sketcher.Constraint("DistanceY", 10, 1, 10, 2, 8.72363))
sketch2.addConstraint(Sketcher.Constraint("Distance", 9, 14.384961))
sketch2.addConstraint(Sketcher.Constraint("DistanceY", -1, 1, 5, 3, 87.66419))
sketch2.addConstraint(Sketcher.Constraint("DistanceY", 3, 2, 6, 2, 84.894932))
pad2 = doc.addObject("PartDesign::Pad", "Pad001")
body.addObject(pad2)
pad2.Profile = sketch2
pad2.Length = 2

doc.recompute()
